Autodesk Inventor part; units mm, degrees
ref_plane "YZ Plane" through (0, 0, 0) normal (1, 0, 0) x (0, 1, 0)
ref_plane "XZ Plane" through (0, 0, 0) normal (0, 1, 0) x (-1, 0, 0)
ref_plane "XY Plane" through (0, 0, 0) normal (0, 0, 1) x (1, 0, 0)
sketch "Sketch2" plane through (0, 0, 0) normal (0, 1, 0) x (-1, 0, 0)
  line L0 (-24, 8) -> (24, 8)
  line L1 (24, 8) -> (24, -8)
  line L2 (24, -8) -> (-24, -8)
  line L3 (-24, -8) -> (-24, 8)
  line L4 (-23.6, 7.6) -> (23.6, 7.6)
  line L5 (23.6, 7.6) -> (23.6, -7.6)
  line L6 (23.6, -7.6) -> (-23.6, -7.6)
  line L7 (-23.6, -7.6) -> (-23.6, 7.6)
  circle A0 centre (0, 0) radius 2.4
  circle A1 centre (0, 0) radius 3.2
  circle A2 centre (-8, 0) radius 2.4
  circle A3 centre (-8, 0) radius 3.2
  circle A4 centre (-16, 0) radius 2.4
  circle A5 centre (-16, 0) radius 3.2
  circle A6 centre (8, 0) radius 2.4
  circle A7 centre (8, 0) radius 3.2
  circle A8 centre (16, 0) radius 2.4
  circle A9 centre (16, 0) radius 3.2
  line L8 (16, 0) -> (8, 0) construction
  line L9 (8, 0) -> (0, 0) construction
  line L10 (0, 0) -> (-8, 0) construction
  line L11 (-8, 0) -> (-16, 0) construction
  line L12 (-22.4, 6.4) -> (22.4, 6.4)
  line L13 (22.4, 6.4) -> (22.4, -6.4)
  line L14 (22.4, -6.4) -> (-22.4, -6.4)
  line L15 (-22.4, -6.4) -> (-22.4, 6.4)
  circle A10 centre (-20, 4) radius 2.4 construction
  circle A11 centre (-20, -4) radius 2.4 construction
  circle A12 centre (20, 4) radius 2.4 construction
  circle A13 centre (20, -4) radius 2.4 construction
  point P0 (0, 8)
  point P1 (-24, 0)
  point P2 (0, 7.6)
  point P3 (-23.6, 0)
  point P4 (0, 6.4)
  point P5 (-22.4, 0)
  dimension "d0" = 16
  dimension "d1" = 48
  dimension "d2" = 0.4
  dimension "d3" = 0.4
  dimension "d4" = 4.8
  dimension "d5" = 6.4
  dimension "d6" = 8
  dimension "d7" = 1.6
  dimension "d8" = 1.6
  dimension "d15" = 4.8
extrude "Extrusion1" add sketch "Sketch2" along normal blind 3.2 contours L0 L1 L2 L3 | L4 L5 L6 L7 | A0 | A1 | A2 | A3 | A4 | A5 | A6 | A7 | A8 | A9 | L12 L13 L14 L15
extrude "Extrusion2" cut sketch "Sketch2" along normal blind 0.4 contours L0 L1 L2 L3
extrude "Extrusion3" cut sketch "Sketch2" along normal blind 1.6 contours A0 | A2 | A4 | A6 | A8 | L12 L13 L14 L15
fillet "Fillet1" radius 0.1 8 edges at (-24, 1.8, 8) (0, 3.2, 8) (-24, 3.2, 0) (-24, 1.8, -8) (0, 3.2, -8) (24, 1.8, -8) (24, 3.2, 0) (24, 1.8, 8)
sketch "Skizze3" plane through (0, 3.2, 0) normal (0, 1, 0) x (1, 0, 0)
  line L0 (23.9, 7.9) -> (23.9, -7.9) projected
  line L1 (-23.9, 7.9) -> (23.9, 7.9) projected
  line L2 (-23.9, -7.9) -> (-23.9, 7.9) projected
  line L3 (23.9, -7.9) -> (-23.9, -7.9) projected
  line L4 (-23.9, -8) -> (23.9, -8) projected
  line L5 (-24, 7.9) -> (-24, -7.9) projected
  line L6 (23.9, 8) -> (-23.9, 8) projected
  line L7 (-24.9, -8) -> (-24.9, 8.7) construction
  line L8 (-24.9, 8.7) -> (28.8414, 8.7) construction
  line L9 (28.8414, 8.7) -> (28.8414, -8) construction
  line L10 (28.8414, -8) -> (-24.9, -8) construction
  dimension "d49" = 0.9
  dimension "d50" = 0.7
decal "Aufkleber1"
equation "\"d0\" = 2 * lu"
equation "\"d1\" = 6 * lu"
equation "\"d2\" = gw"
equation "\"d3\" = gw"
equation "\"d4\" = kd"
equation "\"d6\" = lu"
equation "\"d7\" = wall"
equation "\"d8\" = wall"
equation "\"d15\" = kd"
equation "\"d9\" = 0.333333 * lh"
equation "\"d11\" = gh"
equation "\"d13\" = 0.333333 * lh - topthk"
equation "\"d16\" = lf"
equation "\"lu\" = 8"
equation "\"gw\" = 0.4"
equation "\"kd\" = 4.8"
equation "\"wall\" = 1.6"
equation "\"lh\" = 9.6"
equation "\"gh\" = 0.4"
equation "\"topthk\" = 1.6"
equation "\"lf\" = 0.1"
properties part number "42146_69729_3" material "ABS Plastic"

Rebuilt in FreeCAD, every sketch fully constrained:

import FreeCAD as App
import Part
import Sketcher

V = App.Vector


def edges_at(feature, points):
    """Names of the edges that pass closest to the given points."""
    edges = feature.Shape.Edges
    near = lambda p: min(range(len(edges)), key=lambda i: edges[i].distToShape(Part.Vertex(*p))[0])
    return sorted({f"Edge{near(p) + 1}" for p in points})

doc = App.newDocument("Part")
body = doc.addObject("PartDesign::Body", "Body")

# Sketch on XZ plane
sketch1 = body.newObject("Sketcher::SketchObject", "Sketch")
sketch1.AttachmentSupport = (doc.getObject("XZ_Plane"), [""])
sketch1.MapMode = "FlatFace"
sketch1.addGeometry([
    Part.LineSegment(V(-24, 8, 0), V(24, 8, 0)),
    Part.LineSegment(V(24, 8, 0), V(24, -8, 0)),
    Part.LineSegment(V(24, -8, 0), V(-24, -8, 0)),
    Part.LineSegment(V(-24, -8, 0), V(-24, 8, 0)),
], False)
sketch1.addConstraint([
    Sketcher.Constraint("Coincident", 0, 2, 1, 1),
    Sketcher.Constraint("Coincident", 1, 2, 2, 1),
    Sketcher.Constraint("Coincident", 2, 2, 3, 1),
    Sketcher.Constraint("Coincident", 3, 2, 0, 1),
    Sketcher.Constraint("Horizontal", 0),
    Sketcher.Constraint("Vertical", 1),
    Sketcher.Constraint("Horizontal", 2),
    Sketcher.Constraint("Vertical", 3),
    Sketcher.Constraint("Symmetric", 0, 2, 2, 2, -1, 1),
    Sketcher.Constraint("DistanceX", 0, 1, 0, 2, 48.0),
    Sketcher.Constraint("DistanceY", 1, 2, 1, 1, 16.0),
])
pad1 = body.newObject("PartDesign::Pad", "Pad")
pad1.Profile = sketch1
pad1.Length = 3.2
pad1.Reversed = True

# Sketch on XZ plane
sketch2 = body.newObject("Sketcher::SketchObject", "Sketch001")
sketch2.AttachmentSupport = (doc.getObject("XZ_Plane"), [""])
sketch2.MapMode = "FlatFace"
sketch2.addGeometry([
    Part.LineSegment(V(-24, 8, 0), V(24, 8, 0)),  # 0
    Part.LineSegment(V(24, 8, 0), V(24, -8, 0)),  # 1
    Part.LineSegment(V(24, -8, 0), V(-24, -8, 0)),  # 2
    Part.LineSegment(V(-24, -8, 0), V(-24, 8, 0)),  # 3
    Part.LineSegment(V(24, -8, 0), V(24, 8, 0)),  # 4
    Part.LineSegment(V(24, 8, 0), V(-24, 8, 0)),  # 5
    Part.LineSegment(V(-24, 8, 0), V(-24, -8, 0)),  # 6
    Part.LineSegment(V(-24, -8, 0), V(24, -8, 0)),  # 7
], False)
sketch2.addConstraint([
    Sketcher.Constraint("Coincident", 0, 2, 1, 1),
    Sketcher.Constraint("Coincident", 1, 2, 2, 1),
    Sketcher.Constraint("Coincident", 2, 2, 3, 1),
    Sketcher.Constraint("Coincident", 3, 2, 0, 1),
    Sketcher.Constraint("Coincident", 4, 2, 5, 1),
    Sketcher.Constraint("Coincident", 5, 2, 6, 1),
    Sketcher.Constraint("Coincident", 6, 2, 7, 1),
    Sketcher.Constraint("Coincident", 7, 2, 4, 1),
    Sketcher.Constraint("Horizontal", 0),
    Sketcher.Constraint("Vertical", 1),
    Sketcher.Constraint("Horizontal", 2),
    Sketcher.Constraint("Vertical", 3),
    Sketcher.Constraint("Vertical", 4),
    Sketcher.Constraint("Horizontal", 5),
    Sketcher.Constraint("Vertical", 6),
    Sketcher.Constraint("Horizontal", 7),
    Sketcher.Constraint("Symmetric", 0, 2, 2, 2, -1, 1),
    Sketcher.Constraint("Symmetric", 4, 2, 6, 2, -1, 1),
    Sketcher.Constraint("DistanceX", 0, 1, 0, 2, 48.0),
    Sketcher.Constraint("DistanceY", 1, 2, 1, 1, 16.0),
    Sketcher.Constraint("DistanceX", 4, 2, 0, 2, 0.4),
    Sketcher.Constraint("DistanceY", 4, 2, 0, 2, 0.4),
])
pocket1 = body.newObject("PartDesign::Pocket", "Pocket")
pocket1.Profile = sketch2
pocket1.Length = 0.4

# Sketch on XZ plane
sketch3 = body.newObject("Sketcher::SketchObject", "Sketch002")
sketch3.AttachmentSupport = (doc.getObject("XZ_Plane"), [""])
sketch3.MapMode = "FlatFace"
sketch3.addGeometry([
    Part.Circle(V(0, 0, 0), V(0, 0, 1), 2.4),  # 0
    Part.Circle(V(8, 0, 0), V(0, 0, 1), 2.4),  # 1
    Part.Circle(V(16, 0, 0), V(0, 0, 1), 2.4),  # 2
    Part.Circle(V(-8, 0, 0), V(0, 0, 1), 2.4),  # 3
    Part.Circle(V(-16, 0, 0), V(0, 0, 1), 2.4),  # 4
    Part.LineSegment(V(-22.4, 6.4, 0), V(22.4, 6.4, 0)),  # 5
    Part.LineSegment(V(22.4, 6.4, 0), V(22.4, -6.4, 0)),  # 6
    Part.LineSegment(V(22.4, -6.4, 0), V(-22.4, -6.4, 0)),  # 7
    Part.LineSegment(V(-22.4, -6.4, 0), V(-22.4, 6.4, 0)),  # 8
    Part.Circle(V(16, 0, 0), V(0, 0, 1), 3.2),  # 9
    Part.Circle(V(8, 0, 0), V(0, 0, 1), 3.2),  # 10
    Part.Circle(V(0, 0, 0), V(0, 0, 1), 3.2),  # 11
    Part.Circle(V(-8, 0, 0), V(0, 0, 1), 3.2),  # 12
    Part.Circle(V(-16, 0, 0), V(0, 0, 1), 3.2),  # 13
], False)
sketch3.addConstraint([
    Sketcher.Constraint("Coincident", 5, 2, 6, 1),
    Sketcher.Constraint("Coincident", 6, 2, 7, 1),
    Sketcher.Constraint("Coincident", 7, 2, 8, 1),
    Sketcher.Constraint("Coincident", 8, 2, 5, 1),
    Sketcher.Constraint("Horizontal", 5),
    Sketcher.Constraint("Vertical", 6),
    Sketcher.Constraint("Horizontal", 7),
    Sketcher.Constraint("Vertical", 8),
    Sketcher.Constraint("Coincident", 0, 3, -1, 1),
    Sketcher.Constraint("Coincident", 11, 3, -1, 1),
    Sketcher.Constraint("Coincident", 9, 3, 2, 3),
    Sketcher.Constraint("Coincident", 10, 3, 1, 3),
    Sketcher.Constraint("Coincident", 12, 3, 3, 3),
    Sketcher.Constraint("Coincident", 13, 3, 4, 3),
    Sketcher.Constraint("Equal", 0, 1),
    Sketcher.Constraint("Equal", 1, 2),
    Sketcher.Constraint("Equal", 2, 3),
    Sketcher.Constraint("Equal", 3, 4),
    Sketcher.Constraint("Equal", 9, 10),
    Sketcher.Constraint("Equal", 10, 11),
    Sketcher.Constraint("Equal", 11, 12),
    Sketcher.Constraint("Equal", 12, 13),
    Sketcher.Constraint("Symmetric", 1, 3, 3, 3, -1, 1),
    Sketcher.Constraint("Symmetric", 2, 3, 4, 3, -1, 1),
    Sketcher.Constraint("Symmetric", 5, 2, 7, 2, -1, 1),
    Sketcher.Constraint("PointOnObject", 1, 3, -1),
    Sketcher.Constraint("PointOnObject", 2, 3, -1),
    Sketcher.Constraint("Diameter", 0, 4.8),
    Sketcher.Constraint("Diameter", 9, 6.4),
    Sketcher.Constraint("DistanceX", -1, 1, 1, 3, 8.0),
    Sketcher.Constraint("DistanceX", -1, 1, 2, 3, 16.0),
    Sketcher.Constraint("DistanceY", -1, 1, 5, 2, 6.4),
    Sketcher.Constraint("DistanceX", 2, 3, 5, 2, 6.4),
])
pocket2 = body.newObject("PartDesign::Pocket", "Pocket001")
pocket2.Profile = sketch3
pocket2.Length = 1.6
doc.recompute()

fillet = body.newObject("PartDesign::Fillet", "Fillet")
fillet.Base = (pocket2, edges_at(pocket2, [
    (-24, 1.8, 8),
    (0, 3.2, 8),
    (-24, 3.2, 0),
    (-24, 1.8, -8),
    (0, 3.2, -8),
    (24, 1.8, -8),
    (24, 3.2, 0),
    (24, 1.8, 8),
]))
fillet.Radius = 0.1

doc.recompute()
